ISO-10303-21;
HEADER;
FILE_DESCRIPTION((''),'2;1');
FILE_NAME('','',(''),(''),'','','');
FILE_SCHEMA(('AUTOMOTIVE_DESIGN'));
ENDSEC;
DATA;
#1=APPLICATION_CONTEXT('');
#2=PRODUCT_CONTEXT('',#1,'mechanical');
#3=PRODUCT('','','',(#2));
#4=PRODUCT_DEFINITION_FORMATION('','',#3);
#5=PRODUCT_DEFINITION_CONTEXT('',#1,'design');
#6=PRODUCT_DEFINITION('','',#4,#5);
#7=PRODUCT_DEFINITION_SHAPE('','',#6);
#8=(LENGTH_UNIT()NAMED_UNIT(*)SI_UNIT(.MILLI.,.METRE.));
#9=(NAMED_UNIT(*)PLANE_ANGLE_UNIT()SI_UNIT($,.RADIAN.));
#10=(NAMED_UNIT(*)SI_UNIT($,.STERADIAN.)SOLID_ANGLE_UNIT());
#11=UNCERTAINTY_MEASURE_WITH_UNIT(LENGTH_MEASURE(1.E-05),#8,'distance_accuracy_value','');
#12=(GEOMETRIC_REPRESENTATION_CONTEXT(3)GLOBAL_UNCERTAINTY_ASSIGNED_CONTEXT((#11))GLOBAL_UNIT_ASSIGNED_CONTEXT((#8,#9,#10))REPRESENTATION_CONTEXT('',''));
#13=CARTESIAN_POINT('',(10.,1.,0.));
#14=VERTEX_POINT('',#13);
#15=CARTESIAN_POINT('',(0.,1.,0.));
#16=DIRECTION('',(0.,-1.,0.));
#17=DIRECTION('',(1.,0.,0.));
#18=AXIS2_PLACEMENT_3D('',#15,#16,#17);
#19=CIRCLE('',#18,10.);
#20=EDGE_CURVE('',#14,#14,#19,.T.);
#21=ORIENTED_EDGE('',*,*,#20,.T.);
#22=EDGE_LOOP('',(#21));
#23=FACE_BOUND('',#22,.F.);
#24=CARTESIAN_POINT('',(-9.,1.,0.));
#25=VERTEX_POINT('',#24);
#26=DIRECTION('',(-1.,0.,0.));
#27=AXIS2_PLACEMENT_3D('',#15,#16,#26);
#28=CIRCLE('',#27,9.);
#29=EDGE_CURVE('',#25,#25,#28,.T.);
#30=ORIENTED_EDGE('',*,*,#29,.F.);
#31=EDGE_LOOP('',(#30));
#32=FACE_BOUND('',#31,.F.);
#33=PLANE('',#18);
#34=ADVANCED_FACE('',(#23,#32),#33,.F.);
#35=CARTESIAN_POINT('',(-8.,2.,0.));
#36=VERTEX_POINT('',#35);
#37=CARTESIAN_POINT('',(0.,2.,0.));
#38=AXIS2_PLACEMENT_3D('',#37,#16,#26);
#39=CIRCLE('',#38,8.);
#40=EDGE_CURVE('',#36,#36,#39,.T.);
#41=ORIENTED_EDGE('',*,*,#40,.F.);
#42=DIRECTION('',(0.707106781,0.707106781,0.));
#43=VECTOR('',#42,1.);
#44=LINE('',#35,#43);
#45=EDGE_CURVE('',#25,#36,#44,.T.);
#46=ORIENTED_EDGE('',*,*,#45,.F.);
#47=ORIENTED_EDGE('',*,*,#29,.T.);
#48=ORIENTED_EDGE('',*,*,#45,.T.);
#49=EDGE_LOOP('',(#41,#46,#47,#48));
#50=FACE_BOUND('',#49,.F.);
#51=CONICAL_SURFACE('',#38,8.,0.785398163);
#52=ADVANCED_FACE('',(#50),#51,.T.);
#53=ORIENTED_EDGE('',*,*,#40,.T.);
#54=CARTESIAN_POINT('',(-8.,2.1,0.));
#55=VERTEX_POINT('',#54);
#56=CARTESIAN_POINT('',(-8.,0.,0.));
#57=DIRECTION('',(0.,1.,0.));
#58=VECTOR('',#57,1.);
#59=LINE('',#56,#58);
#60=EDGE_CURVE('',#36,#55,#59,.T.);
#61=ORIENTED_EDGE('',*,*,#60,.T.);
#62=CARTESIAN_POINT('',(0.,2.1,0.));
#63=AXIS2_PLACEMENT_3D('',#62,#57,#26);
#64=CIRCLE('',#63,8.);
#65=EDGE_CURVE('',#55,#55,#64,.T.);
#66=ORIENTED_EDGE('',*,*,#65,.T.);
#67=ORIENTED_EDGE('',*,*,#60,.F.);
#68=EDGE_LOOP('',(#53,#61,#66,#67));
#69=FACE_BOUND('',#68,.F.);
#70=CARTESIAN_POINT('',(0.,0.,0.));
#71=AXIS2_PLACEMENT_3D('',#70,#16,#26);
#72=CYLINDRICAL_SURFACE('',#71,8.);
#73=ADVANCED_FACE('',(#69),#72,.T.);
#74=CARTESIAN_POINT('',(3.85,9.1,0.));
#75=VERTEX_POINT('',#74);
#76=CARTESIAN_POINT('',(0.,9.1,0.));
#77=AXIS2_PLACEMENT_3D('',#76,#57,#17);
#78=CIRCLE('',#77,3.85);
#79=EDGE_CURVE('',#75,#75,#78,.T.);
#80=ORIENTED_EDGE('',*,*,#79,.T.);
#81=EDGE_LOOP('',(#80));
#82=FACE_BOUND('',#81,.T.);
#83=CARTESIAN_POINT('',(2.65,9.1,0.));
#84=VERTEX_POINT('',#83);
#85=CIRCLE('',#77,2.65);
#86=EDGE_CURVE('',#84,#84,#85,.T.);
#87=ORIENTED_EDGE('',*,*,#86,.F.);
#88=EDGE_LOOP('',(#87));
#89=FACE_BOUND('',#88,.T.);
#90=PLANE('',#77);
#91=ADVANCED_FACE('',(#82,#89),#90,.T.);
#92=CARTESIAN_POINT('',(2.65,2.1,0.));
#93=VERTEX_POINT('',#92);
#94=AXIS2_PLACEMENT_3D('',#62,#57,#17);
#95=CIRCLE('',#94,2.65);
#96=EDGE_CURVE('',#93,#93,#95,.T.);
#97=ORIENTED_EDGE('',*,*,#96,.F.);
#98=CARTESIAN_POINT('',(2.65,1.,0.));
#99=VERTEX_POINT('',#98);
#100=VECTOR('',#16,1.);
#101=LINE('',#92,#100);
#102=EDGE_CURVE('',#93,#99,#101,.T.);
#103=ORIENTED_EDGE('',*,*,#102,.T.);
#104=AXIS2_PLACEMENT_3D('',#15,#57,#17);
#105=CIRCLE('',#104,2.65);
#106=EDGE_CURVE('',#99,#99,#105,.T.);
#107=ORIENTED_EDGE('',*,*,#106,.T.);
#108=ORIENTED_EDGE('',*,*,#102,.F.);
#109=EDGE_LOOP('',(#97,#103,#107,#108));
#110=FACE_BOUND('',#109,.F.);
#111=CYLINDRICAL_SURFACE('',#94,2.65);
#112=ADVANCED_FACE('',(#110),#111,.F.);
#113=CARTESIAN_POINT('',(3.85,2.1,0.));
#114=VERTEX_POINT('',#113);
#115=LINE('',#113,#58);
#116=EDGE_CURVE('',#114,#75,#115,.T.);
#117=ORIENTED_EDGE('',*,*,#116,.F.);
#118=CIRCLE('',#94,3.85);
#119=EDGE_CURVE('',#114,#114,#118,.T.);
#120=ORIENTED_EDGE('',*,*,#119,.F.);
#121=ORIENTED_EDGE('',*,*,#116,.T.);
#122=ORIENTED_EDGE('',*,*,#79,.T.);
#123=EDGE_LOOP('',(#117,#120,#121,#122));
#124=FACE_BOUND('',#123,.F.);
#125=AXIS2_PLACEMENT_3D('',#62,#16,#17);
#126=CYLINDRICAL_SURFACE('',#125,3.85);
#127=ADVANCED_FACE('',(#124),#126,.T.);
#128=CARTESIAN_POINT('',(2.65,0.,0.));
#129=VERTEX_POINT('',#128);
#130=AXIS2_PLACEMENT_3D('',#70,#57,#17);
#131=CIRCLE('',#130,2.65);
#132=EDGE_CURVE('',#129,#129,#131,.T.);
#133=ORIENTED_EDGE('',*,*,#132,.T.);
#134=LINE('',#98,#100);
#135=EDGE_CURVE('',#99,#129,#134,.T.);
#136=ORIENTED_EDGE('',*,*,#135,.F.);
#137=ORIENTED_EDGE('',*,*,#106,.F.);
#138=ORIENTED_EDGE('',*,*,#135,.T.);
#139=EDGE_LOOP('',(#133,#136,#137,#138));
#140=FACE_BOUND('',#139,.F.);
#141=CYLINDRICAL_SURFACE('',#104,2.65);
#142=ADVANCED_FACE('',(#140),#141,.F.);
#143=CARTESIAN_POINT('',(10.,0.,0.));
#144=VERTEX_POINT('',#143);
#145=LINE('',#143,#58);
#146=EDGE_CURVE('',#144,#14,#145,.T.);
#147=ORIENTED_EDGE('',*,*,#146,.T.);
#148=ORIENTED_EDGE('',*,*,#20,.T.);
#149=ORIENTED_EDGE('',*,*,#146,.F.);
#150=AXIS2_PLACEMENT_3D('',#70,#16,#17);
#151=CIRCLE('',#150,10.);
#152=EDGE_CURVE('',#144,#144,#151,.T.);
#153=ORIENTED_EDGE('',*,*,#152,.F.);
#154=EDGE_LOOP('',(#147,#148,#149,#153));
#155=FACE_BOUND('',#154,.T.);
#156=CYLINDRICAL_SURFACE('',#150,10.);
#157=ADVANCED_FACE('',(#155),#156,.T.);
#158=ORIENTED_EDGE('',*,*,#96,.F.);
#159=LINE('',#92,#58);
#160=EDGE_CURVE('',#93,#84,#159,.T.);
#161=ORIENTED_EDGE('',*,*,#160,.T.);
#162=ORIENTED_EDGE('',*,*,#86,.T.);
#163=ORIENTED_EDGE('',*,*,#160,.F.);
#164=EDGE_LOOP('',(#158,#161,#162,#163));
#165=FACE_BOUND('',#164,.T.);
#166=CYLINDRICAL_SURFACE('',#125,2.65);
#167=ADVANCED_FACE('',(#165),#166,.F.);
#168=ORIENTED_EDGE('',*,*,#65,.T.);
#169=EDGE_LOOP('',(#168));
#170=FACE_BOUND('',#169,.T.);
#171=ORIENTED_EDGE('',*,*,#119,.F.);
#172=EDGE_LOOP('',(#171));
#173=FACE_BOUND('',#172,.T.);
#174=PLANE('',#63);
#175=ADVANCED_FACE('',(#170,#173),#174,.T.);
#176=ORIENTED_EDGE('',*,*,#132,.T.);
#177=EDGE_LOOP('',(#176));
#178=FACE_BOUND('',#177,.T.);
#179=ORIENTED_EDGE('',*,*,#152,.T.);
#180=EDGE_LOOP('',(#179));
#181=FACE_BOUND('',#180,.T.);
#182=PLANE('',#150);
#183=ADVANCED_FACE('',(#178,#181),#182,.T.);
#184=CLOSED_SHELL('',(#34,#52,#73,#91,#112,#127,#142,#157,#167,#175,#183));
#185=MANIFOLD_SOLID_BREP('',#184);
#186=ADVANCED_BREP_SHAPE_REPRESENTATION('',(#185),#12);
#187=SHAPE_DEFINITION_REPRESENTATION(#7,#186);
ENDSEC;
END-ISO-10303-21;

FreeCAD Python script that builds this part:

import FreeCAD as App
import Part
import Sketcher
from FreeCAD import Vector


def edges_at(feature, points):
    """Names of the edges that pass closest to the given points."""
    edges = feature.Shape.Edges
    near = lambda p: min(range(len(edges)), key=lambda i: edges[i].distToShape(Part.Vertex(*p))[0])
    return sorted({f"Edge{near(p) + 1}" for p in points})

doc = App.newDocument("Part")
params = doc.addObject("Spreadsheet::Sheet", "Params")
for row, (alias, value) in enumerate([
    ("sketch1_diameter", "16 mm"),
    ("pad1_length", "2.1 mm"),
    ("sketch2_diameter", "5.3 mm"),
    ("sketch3_diameter", "7.7 mm"),
    ("sketch3_diameter2", "5.3 mm"),
    ("pad2_length", "7 mm"),
    ("sketch4_diameter", "20 mm"),
    ("pad3_length", "1 mm"),
    ("sketch5_diameter", "5.3 mm"),
    ("chamfer_size", "1 mm"),
], start=1):
    params.set(f"A{row}", alias)
    params.set(f"B{row}", "=" + value)
    params.setAlias(f"B{row}", alias)

body = doc.addObject("PartDesign::Body", "Body")

# Sketch on XZ plane
sketch1 = doc.addObject("Sketcher::SketchObject", "Sketch")
body.addObject(sketch1)
sketch1.AttachmentSupport = (doc.XZ_Plane, [""])
sketch1.MapMode = "FlatFace"
sketch1.addGeometry(Part.Circle(Vector(0, 0, 0), Vector(0, 0, 1), 8), False)
sketch1.addConstraint([
    Sketcher.Constraint("Coincident", 0, 3, -1, 1),
    Sketcher.Constraint("Diameter", 0, 16.0),
])
sketch1.setExpression("Constraints[1]", "Params.sketch1_diameter")
pad1 = doc.addObject("PartDesign::Pad", "Pad")
body.addObject(pad1)
pad1.Profile = sketch1
pad1.setExpression("Length", "Params.pad1_length")
pad1.Reversed = True

# Sketch on XZ plane
sketch2 = doc.addObject("Sketcher::SketchObject", "Sketch001")
body.addObject(sketch2)
sketch2.AttachmentSupport = (doc.XZ_Plane, [""])
sketch2.MapMode = "FlatFace"
sketch2.AttachmentOffset = App.Placement(Vector(0, 0, -2.1), App.Rotation())
sketch2.addGeometry(Part.Circle(Vector(0, 0, 0), Vector(0, 0, 1), 2.6), False)
sketch2.addConstraint([
    Sketcher.Constraint("Coincident", 0, 3, -1, 1),
    Sketcher.Constraint("Diameter", 0, 5.3),
])
sketch2.setExpression("Constraints[1]", "Params.sketch2_diameter")
pocket1 = doc.addObject("PartDesign::Pocket", "Pocket")
body.addObject(pocket1)
pocket1.Profile = sketch2
pocket1.Type = "ThroughAll"
pocket1.Reversed = True

# Sketch on XZ plane
sketch3 = doc.addObject("Sketcher::SketchObject", "Sketch002")
body.addObject(sketch3)
sketch3.AttachmentSupport = (doc.XZ_Plane, [""])
sketch3.MapMode = "FlatFace"
sketch3.AttachmentOffset = App.Placement(Vector(0, 0, -2.1), App.Rotation())
sketch3.addGeometry([
    Part.Circle(Vector(0, 0, 0), Vector(0, 0, 1), 3.9),
    Part.Circle(Vector(0, 0, 0), Vector(0, 0, 1), 2.6),
], False)
sketch3.addConstraint([
    Sketcher.Constraint("Coincident", 0, 3, -1, 1),
    Sketcher.Constraint("Coincident", 1, 3, -1, 1),
    Sketcher.Constraint("Diameter", 0, 7.7),
    Sketcher.Constraint("Diameter", 1, 5.3),
])
sketch3.setExpression("Constraints[2]", "Params.sketch3_diameter")
sketch3.setExpression("Constraints[3]", "Params.sketch3_diameter2")
pad2 = doc.addObject("PartDesign::Pad", "Pad001")
body.addObject(pad2)
pad2.Profile = sketch3
pad2.setExpression("Length", "Params.pad2_length")
pad2.Reversed = True

# Sketch on XZ plane
sketch4 = doc.addObject("Sketcher::SketchObject", "Sketch003")
body.addObject(sketch4)
sketch4.AttachmentSupport = (doc.XZ_Plane, [""])
sketch4.MapMode = "FlatFace"
sketch4.addGeometry(Part.Circle(Vector(0, 0, 0), Vector(0, 0, 1), 10), False)
sketch4.addConstraint([
    Sketcher.Constraint("Coincident", 0, 3, -1, 1),
    Sketcher.Constraint("Diameter", 0, 20.0),
])
sketch4.setExpression("Constraints[1]", "Params.sketch4_diameter")
pad3 = doc.addObject("PartDesign::Pad", "Pad002")
body.addObject(pad3)
pad3.Profile = sketch4
pad3.setExpression("Length", "Params.pad3_length")
pad3.Reversed = True

# Sketch on XZ plane
sketch5 = doc.addObject("Sketcher::SketchObject", "Sketch004")
body.addObject(sketch5)
sketch5.AttachmentSupport = (doc.XZ_Plane, [""])
sketch5.MapMode = "FlatFace"
sketch5.AttachmentOffset = App.Placement(Vector(0, 0, -1), App.Rotation())
sketch5.addGeometry(Part.Circle(Vector(0, 0, 0), Vector(0, 0, 1), 2.6), False)
sketch5.addConstraint([
    Sketcher.Constraint("Coincident", 0, 3, -1, 1),
    Sketcher.Constraint("Diameter", 0, 5.3),
])
sketch5.setExpression("Constraints[1]", "Params.sketch5_diameter")
pocket2 = doc.addObject("PartDesign::Pocket", "Pocket001")
body.addObject(pocket2)
pocket2.Profile = sketch5
pocket2.Type = "ThroughAll"
pocket2.Reversed = True
doc.recompute()

chamfer = doc.addObject("PartDesign::Chamfer", "Chamfer")
body.addObject(chamfer)
chamfer.Base = (pocket2, edges_at(pocket2, [(8, 1, 0)]))
chamfer.setExpression("Size", "Params.chamfer_size")

doc.recompute()
